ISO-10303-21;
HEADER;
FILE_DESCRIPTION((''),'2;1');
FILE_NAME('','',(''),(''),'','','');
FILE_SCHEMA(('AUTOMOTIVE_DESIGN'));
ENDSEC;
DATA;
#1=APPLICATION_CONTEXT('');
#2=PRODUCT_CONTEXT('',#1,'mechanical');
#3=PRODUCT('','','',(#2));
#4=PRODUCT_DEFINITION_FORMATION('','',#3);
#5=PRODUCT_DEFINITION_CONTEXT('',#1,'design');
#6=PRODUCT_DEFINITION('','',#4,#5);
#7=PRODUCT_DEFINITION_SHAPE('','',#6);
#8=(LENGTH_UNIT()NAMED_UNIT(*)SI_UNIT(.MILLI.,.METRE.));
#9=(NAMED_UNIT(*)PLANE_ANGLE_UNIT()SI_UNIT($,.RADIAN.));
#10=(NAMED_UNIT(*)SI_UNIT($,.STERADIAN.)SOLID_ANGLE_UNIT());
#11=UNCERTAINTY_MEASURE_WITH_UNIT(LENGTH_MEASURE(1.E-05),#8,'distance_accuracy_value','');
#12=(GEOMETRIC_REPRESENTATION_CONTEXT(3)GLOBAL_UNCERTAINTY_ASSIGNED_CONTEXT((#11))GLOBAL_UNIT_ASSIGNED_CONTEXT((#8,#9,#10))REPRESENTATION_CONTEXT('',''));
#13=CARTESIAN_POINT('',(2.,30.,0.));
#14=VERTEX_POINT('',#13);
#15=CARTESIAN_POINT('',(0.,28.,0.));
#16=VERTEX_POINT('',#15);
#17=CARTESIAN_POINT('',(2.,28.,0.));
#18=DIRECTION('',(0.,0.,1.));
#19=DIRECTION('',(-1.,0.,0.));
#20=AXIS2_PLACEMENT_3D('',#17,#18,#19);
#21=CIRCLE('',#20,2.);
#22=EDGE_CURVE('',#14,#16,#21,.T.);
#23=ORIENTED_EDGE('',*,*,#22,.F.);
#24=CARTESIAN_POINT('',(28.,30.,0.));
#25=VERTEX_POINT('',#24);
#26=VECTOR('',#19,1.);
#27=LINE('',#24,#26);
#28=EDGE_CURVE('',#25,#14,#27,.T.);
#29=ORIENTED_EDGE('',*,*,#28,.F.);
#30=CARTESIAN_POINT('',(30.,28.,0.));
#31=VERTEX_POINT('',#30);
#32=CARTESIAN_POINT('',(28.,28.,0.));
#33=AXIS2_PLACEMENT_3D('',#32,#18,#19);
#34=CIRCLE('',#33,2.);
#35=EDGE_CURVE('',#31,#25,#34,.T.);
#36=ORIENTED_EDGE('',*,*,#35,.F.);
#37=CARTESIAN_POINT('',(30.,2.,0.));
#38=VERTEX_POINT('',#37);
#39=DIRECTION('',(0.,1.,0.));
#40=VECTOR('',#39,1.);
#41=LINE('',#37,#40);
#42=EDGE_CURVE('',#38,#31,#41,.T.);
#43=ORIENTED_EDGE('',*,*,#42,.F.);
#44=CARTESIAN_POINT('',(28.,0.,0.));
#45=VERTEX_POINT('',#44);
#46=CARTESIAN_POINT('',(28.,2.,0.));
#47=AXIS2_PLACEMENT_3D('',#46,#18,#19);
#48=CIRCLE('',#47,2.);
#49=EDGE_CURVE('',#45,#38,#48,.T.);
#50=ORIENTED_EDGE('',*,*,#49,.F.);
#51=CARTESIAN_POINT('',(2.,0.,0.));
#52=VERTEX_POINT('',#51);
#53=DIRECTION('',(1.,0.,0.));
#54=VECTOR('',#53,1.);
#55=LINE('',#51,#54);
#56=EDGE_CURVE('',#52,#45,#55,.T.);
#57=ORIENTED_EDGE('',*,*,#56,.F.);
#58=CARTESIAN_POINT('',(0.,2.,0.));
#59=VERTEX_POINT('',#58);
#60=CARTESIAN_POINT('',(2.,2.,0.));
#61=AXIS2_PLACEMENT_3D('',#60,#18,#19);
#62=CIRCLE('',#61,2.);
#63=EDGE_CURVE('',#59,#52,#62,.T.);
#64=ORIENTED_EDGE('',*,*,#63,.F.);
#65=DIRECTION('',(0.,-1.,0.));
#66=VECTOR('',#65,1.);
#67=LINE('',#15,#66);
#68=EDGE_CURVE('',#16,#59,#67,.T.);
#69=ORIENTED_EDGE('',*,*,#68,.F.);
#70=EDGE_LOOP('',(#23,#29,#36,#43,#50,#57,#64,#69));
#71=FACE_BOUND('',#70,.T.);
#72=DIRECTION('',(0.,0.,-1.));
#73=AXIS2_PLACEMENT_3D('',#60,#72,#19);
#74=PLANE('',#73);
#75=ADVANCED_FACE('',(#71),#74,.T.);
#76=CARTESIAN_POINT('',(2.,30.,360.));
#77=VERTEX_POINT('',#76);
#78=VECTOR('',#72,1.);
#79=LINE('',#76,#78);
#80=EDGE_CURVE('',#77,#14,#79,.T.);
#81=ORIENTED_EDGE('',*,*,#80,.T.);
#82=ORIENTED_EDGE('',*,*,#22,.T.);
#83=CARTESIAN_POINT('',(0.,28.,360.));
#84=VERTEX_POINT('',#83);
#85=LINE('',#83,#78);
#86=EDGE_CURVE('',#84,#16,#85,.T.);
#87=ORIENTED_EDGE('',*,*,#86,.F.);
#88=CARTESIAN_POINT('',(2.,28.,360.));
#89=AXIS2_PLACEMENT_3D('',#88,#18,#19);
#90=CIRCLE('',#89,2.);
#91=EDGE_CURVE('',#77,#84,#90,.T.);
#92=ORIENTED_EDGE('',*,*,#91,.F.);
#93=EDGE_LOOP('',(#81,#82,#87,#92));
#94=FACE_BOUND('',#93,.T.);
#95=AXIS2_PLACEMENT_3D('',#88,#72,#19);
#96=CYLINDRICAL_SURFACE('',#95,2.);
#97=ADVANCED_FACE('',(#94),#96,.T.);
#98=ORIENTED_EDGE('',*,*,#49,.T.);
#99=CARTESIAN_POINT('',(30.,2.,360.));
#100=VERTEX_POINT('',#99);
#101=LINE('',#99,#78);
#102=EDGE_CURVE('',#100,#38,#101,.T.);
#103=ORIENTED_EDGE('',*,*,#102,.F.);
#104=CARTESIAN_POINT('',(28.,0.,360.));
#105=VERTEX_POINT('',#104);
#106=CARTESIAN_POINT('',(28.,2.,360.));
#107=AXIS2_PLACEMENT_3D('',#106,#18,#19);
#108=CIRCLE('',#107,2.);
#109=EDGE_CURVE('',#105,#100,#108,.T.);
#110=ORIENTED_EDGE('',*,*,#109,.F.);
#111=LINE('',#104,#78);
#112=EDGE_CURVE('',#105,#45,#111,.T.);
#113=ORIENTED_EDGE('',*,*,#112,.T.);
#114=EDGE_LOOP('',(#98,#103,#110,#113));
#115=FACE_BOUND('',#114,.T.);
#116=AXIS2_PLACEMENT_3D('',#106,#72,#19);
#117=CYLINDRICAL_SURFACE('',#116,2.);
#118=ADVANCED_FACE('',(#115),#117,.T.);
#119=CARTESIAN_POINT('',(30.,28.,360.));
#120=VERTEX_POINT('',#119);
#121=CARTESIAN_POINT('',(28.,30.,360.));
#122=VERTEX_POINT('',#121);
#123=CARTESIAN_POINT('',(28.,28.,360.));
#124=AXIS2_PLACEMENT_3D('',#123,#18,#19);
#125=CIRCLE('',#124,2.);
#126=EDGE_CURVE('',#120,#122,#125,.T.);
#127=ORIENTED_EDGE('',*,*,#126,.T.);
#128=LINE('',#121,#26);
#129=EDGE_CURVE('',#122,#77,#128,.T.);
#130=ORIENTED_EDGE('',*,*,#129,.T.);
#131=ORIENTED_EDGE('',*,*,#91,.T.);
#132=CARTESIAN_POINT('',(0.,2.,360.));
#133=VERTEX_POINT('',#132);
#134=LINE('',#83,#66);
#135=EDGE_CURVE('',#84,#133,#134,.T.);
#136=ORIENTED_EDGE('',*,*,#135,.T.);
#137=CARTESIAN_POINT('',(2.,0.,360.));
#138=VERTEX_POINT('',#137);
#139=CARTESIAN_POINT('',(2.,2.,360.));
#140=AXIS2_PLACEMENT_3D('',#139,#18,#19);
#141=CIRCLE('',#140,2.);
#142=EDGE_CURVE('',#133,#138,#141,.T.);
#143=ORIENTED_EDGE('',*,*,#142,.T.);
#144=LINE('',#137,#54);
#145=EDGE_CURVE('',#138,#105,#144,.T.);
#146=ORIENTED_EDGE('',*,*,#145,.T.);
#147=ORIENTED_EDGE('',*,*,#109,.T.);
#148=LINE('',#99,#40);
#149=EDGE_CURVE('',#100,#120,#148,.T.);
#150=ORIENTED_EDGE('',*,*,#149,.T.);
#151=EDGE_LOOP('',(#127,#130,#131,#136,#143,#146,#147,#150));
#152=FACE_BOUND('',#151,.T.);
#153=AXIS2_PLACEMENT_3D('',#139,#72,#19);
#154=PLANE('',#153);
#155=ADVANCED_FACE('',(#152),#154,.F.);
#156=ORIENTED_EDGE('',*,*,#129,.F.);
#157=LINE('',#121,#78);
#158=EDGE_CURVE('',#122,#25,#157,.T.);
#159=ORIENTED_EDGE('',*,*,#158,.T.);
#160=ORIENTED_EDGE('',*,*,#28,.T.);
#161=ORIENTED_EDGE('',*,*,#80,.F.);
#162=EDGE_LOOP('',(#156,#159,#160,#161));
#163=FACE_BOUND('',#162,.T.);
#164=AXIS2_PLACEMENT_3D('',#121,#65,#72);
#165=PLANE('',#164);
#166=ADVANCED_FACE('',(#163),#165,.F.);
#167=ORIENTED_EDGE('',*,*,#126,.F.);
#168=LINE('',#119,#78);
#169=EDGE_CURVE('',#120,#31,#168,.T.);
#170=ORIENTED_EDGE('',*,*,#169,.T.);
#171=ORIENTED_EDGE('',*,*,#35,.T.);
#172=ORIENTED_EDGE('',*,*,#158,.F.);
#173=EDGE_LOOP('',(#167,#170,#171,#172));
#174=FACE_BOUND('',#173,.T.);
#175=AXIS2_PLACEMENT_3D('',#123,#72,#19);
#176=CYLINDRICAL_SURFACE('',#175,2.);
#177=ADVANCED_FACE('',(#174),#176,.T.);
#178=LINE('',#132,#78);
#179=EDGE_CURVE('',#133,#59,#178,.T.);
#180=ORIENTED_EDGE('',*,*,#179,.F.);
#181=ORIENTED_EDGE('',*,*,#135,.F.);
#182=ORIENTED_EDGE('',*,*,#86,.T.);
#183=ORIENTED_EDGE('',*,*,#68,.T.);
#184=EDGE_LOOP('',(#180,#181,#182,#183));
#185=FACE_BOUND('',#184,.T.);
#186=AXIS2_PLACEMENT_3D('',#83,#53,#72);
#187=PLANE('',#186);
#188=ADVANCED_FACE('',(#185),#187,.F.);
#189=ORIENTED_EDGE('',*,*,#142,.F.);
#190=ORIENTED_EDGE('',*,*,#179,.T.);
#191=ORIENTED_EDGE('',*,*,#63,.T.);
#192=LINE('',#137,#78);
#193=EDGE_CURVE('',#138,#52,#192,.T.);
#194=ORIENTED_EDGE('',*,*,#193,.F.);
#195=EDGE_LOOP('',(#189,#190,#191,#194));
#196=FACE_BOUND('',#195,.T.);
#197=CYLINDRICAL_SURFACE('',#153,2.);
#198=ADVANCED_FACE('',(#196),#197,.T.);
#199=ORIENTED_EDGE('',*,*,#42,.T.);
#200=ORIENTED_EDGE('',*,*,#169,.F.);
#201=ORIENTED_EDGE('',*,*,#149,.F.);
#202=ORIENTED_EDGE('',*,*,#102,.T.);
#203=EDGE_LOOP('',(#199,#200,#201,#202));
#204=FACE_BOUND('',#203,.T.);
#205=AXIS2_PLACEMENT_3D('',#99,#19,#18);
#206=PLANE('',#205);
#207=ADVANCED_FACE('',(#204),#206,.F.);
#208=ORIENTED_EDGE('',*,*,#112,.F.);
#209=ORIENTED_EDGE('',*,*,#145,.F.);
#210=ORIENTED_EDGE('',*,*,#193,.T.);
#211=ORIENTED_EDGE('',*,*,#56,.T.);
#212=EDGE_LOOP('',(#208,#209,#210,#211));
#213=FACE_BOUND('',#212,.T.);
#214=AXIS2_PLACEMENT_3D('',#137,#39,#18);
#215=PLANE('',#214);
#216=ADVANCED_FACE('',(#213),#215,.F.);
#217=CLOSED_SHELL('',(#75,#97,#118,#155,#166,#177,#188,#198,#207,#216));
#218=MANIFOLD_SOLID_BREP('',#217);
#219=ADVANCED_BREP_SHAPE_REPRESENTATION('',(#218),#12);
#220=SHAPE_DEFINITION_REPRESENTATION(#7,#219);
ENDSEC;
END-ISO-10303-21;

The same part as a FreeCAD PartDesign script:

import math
import FreeCAD as App
import Part
import Sketcher

V = App.Vector

doc = App.newDocument("Part")
body = doc.addObject("PartDesign::Body", "Body")

sketch1 = body.newObject("Sketcher::SketchObject", "Sketch")
sketch1.AttachmentSupport = (doc.getObject("XY_Plane"), [""])
sketch1.MapMode = "FlatFace"
sketch1.addGeometry([
    Part.LineSegment(V(2, 0, 0), V(28, 0, 0)),
    Part.ArcOfCircle(Part.Circle(V(28, 2, 0), V(0, 0, 1), 2), math.radians(-90), math.radians(0)),
    Part.LineSegment(V(30, 2, 0), V(30, 28, 0)),
    Part.ArcOfCircle(Part.Circle(V(28, 28, 0), V(0, 0, 1), 2), math.radians(0), math.radians(90)),
    Part.LineSegment(V(28, 30, 0), V(2, 30, 0)),
    Part.ArcOfCircle(Part.Circle(V(2, 28, 0), V(0, 0, 1), 2), math.radians(90), math.radians(180)),
    Part.LineSegment(V(0, 28, 0), V(0, 2, 0)),
    Part.ArcOfCircle(Part.Circle(V(2, 2, 0), V(0, 0, 1), 2), math.radians(-180), math.radians(-90)),
], False)
sketch1.addConstraint([
    Sketcher.Constraint("Tangent", 0, 2, 1, 1),
    Sketcher.Constraint("Tangent", 1, 2, 2, 1),
    Sketcher.Constraint("Tangent", 2, 2, 3, 1),
    Sketcher.Constraint("Tangent", 3, 2, 4, 1),
    Sketcher.Constraint("Tangent", 4, 2, 5, 1),
    Sketcher.Constraint("Tangent", 5, 2, 6, 1),
    Sketcher.Constraint("Tangent", 6, 2, 7, 1),
    Sketcher.Constraint("Tangent", 7, 2, 0, 1),
    Sketcher.Constraint("Horizontal", 0),
    Sketcher.Constraint("Vertical", 2),
    Sketcher.Constraint("Horizontal", 4),
    Sketcher.Constraint("Vertical", 6),
    Sketcher.Constraint("Equal", 1, 3),
    Sketcher.Constraint("Equal", 3, 5),
    Sketcher.Constraint("Equal", 5, 7),
    Sketcher.Constraint("PointOnObject", 0, 2, -1),
    Sketcher.Constraint("PointOnObject", 5, 2, -2),
    Sketcher.Constraint("Equal", 4, 2),
    Sketcher.Constraint("Radius", 1, 2.0),
    Sketcher.Constraint("DistanceX", 0, 1, 0, 2, 26.0),
])
pad1 = body.newObject("PartDesign::Pad", "Pad")
pad1.Profile = sketch1
pad1.Length = 360

doc.recompute()
